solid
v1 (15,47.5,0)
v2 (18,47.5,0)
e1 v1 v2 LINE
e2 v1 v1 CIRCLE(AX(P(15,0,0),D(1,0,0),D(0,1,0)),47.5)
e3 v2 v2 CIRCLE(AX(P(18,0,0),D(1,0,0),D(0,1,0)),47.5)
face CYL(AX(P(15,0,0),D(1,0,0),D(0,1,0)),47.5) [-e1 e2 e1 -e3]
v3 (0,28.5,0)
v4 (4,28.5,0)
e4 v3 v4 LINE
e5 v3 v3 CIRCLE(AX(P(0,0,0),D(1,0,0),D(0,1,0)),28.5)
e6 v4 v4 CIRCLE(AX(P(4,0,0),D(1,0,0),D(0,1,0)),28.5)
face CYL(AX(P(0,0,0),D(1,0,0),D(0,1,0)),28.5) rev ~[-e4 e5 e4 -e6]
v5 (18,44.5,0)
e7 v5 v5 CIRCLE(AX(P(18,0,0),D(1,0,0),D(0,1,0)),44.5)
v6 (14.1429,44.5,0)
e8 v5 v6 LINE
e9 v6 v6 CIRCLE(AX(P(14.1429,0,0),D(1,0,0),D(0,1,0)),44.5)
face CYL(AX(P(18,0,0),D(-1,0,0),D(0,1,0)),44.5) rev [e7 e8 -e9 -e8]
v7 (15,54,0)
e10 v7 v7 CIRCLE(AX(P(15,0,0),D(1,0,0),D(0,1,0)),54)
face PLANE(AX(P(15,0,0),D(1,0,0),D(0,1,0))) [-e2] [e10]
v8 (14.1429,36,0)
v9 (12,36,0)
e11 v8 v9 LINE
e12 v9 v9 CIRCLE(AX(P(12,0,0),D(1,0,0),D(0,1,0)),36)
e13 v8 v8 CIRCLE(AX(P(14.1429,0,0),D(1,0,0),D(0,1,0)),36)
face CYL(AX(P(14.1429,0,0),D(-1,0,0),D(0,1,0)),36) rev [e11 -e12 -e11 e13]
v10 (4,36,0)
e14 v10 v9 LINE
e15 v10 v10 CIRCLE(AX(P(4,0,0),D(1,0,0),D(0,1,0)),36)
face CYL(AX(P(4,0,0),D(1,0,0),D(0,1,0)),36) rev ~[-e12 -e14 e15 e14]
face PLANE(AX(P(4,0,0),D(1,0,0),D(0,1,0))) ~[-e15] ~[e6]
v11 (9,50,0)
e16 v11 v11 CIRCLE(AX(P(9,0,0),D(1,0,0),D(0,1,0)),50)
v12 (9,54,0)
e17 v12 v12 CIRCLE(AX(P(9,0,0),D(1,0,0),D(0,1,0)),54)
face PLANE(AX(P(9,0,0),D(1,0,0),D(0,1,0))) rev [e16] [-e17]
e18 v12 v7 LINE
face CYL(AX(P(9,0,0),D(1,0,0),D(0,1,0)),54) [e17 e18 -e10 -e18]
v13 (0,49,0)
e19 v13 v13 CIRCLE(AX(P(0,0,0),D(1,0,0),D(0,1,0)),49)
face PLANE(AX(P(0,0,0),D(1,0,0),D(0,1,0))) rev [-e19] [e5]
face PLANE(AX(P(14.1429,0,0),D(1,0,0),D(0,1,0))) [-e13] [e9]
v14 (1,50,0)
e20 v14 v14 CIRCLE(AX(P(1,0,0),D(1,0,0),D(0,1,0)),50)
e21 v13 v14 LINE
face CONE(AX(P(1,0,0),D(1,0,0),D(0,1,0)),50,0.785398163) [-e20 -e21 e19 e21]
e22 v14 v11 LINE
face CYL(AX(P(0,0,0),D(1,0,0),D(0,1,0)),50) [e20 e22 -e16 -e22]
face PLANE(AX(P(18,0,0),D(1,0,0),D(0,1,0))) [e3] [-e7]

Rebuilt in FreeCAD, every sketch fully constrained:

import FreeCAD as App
import Part
import Sketcher

V = App.Vector


def edges_at(feature, points):
    """Names of the edges that pass closest to the given points."""
    edges = feature.Shape.Edges
    near = lambda p: min(range(len(edges)), key=lambda i: edges[i].distToShape(Part.Vertex(*p))[0])
    return sorted({f"Edge{near(p) + 1}" for p in points})


def add_polygon(sketch, points):
    """Adds a closed chain of lines whose ends are joined by coincident constraints."""
    first, n = sketch.GeometryCount, len(points)
    for a, b in zip(points, points[1:] + points[:1]):
        sketch.addGeometry(Part.LineSegment(App.Vector(*a, 0), App.Vector(*b, 0)), False)
    for i in range(n):
        sketch.addConstraint(Sketcher.Constraint("Coincident", first + i, 2, first + (i + 1) % n, 1))

doc = App.newDocument("Part")
body = doc.addObject("PartDesign::Body", "Body")

# Sketch on XY plane
sketch1 = body.newObject("Sketcher::SketchObject", "Sketch")
sketch1.AttachmentSupport = (doc.getObject("XY_Plane"), [""])
sketch1.MapMode = "FlatFace"
add_polygon(sketch1, [(0, 50), (0, 28.5), (4, 28.5), (4, 36), (14.1, 36), (14.1, 44.5), (18, 44.5), (18, 47.5), (15, 47.5), (15, 54), (9, 54), (9, 50)])  # lines 0-11
sketch1.addConstraint([
    Sketcher.Constraint("Vertical", 0),
    Sketcher.Constraint("Horizontal", 1),
    Sketcher.Constraint("Vertical", 2),
    Sketcher.Constraint("Horizontal", 3),
    Sketcher.Constraint("Vertical", 4),
    Sketcher.Constraint("Horizontal", 5),
    Sketcher.Constraint("Vertical", 6),
    Sketcher.Constraint("Horizontal", 7),
    Sketcher.Constraint("Vertical", 8),
    Sketcher.Constraint("Horizontal", 9),
    Sketcher.Constraint("Vertical", 10),
    Sketcher.Constraint("Horizontal", 11),
    Sketcher.Constraint("PointOnObject", 0, 2, -2),
    Sketcher.Constraint("Equal", 7, 6),
    Sketcher.Constraint("Equal", 1, 10),
    Sketcher.Constraint("DistanceX", 1, 1, 1, 2, 4.0),
    Sketcher.Constraint("DistanceX", 7, 2, 7, 1, 3.0),
    Sketcher.Constraint("DistanceX", 9, 2, 9, 1, 6.0),
    Sketcher.Constraint("DistanceX", 11, 2, 11, 1, 9.0),
    Sketcher.Constraint("DistanceY", 0, 2, 0, 1, 21.5),
    Sketcher.Constraint("DistanceY", 2, 1, 2, 2, 7.5),
    Sketcher.Constraint("DistanceY", 4, 1, 4, 2, 8.5),
    Sketcher.Constraint("DistanceY", -1, 1, 2, 2, 36.0),
    Sketcher.Constraint("DistanceX", 3, 1, 3, 2, 10.143),
])
revolution = body.newObject("PartDesign::Revolution", "Revolution")
revolution.Profile = sketch1
revolution.ReferenceAxis = (sketch1, ["H_Axis"])
revolution.Angle = 360
doc.recompute()

chamfer = body.newObject("PartDesign::Chamfer", "Chamfer")
chamfer.Base = (revolution, edges_at(revolution, [(0, -50, 0)]))
chamfer.Size = 1

doc.recompute()
